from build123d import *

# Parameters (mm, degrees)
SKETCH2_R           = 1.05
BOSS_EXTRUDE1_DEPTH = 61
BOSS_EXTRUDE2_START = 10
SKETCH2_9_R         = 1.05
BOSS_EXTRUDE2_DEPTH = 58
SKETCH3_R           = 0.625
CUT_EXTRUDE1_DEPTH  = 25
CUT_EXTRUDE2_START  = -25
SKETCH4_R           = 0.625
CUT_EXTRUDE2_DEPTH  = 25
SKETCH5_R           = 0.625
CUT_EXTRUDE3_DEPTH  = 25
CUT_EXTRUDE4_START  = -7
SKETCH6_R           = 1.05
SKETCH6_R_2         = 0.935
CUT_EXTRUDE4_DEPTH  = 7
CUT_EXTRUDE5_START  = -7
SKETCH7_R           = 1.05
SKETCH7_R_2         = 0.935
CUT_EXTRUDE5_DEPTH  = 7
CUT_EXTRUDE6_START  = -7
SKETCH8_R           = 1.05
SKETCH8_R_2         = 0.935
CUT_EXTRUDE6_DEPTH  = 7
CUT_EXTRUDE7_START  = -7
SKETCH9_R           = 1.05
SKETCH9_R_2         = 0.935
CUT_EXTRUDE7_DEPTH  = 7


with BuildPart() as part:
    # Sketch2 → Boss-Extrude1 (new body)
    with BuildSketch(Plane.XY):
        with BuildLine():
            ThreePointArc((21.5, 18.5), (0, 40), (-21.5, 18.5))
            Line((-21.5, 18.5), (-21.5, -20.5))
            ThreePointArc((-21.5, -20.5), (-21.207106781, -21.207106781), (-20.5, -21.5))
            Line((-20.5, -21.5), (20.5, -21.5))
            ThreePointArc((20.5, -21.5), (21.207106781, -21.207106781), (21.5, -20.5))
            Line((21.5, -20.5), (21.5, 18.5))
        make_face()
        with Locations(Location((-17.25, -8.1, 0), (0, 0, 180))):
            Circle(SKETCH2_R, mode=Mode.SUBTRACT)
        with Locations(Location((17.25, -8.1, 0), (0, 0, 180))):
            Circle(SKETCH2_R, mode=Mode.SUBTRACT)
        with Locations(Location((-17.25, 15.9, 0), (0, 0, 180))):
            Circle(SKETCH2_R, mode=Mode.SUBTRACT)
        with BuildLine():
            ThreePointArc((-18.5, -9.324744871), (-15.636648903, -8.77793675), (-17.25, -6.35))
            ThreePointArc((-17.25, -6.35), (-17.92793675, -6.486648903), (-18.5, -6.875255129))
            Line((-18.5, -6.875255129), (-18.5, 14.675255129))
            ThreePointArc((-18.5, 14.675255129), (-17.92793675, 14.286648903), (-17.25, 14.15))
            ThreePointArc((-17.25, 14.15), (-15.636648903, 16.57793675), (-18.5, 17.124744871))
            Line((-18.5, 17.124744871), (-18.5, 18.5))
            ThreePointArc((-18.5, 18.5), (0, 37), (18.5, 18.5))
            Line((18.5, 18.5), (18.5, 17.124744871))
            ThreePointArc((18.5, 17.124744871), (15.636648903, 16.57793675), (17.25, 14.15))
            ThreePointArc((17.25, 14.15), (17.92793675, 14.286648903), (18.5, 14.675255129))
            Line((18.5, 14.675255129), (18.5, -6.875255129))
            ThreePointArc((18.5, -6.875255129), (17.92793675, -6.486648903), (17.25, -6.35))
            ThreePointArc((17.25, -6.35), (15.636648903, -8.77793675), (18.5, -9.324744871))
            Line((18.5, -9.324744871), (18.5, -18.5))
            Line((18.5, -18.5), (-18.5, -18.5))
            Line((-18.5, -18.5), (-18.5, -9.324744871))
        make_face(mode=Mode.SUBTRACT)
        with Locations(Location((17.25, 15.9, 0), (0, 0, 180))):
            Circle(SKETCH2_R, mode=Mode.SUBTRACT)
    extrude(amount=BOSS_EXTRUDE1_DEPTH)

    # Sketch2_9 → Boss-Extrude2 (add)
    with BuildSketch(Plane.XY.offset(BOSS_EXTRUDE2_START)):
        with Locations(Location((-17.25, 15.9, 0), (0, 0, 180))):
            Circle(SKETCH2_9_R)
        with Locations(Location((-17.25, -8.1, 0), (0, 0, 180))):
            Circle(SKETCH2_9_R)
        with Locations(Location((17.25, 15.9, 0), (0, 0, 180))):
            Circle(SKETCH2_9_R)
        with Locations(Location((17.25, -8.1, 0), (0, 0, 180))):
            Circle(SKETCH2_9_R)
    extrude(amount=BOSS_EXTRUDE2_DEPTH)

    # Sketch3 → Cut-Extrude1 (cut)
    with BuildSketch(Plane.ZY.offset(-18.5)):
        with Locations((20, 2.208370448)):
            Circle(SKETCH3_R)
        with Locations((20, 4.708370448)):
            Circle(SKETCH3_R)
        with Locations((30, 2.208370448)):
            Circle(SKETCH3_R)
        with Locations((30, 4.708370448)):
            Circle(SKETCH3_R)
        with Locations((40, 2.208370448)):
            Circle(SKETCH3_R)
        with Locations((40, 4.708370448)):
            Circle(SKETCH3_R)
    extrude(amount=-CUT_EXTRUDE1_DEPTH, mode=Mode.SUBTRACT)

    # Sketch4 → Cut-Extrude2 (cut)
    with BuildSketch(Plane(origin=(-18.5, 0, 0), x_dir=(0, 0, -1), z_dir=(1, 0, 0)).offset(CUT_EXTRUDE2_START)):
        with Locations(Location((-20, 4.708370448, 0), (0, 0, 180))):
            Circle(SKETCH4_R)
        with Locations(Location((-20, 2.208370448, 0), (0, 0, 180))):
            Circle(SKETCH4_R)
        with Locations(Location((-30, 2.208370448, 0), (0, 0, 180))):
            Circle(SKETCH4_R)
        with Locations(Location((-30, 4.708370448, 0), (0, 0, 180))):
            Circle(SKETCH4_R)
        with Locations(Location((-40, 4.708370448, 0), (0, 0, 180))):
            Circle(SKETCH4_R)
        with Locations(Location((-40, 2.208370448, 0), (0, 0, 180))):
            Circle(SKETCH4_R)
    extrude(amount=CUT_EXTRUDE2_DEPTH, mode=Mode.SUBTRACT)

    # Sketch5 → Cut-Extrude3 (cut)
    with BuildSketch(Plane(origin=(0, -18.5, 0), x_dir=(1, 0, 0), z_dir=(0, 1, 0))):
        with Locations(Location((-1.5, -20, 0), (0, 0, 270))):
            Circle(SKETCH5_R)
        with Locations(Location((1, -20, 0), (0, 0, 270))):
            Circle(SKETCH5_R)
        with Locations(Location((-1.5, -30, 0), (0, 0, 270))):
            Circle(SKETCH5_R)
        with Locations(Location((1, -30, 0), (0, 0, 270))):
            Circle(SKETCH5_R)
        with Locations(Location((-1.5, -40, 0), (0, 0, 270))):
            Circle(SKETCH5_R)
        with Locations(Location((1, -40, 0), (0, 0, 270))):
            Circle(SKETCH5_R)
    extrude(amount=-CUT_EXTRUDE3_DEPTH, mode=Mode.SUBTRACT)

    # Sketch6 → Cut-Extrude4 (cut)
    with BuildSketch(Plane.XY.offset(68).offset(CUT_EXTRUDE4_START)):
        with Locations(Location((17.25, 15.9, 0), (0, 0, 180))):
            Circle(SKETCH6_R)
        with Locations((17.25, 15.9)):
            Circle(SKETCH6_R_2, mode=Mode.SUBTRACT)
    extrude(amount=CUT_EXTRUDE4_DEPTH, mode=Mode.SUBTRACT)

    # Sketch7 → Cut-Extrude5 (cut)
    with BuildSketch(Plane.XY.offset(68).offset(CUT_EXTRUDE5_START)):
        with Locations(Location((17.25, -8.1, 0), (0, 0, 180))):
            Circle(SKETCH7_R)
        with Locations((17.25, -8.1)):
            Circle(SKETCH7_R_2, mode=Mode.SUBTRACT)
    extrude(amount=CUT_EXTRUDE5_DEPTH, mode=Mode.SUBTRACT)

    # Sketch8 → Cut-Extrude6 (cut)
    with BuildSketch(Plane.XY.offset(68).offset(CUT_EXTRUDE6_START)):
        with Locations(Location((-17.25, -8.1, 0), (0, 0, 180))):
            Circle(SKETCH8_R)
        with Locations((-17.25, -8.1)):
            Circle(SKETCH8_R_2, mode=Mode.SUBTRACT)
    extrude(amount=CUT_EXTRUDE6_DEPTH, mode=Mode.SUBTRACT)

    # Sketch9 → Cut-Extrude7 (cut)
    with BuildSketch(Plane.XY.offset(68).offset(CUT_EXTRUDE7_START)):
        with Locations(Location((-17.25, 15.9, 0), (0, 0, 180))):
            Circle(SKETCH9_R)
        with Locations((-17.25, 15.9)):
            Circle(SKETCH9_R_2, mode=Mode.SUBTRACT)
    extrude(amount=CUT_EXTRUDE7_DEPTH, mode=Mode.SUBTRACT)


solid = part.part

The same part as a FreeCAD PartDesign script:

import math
import FreeCAD as App
import Part
import Sketcher
Q = App.Units.Quantity

doc = App.newDocument("Part")
params = doc.addObject("Spreadsheet::Sheet", "Params")
for row, (alias, value) in enumerate([
    ("sketch1_radius", "1 mm"),
    ("sketch1_diameter", "2.1 mm"),
    ("sketch1_radius2", "21.5 mm"),
    ("sketch1_radius3", "18.5 mm"),
    ("sketch1_height", "39 mm"),
    ("pad1_length", "61 mm"),
    ("sketch2_diameter", "2.1 mm"),
    ("pad2_length", "58 mm"),
    ("sketch3_diameter", "1.25 mm"),
    ("pocket1_length", "25 mm"),
    ("sketch4_diameter", "1.25 mm"),
    ("pocket2_length", "25 mm"),
    ("sketch5_diameter", "1.25 mm"),
    ("pocket3_length", "25 mm"),
    ("sketch6_diameter", "2.1 mm"),
    ("sketch6_diameter2", "1.87 mm"),
    ("pocket4_length", "7 mm"),
    ("sketch7_diameter", "2.1 mm"),
    ("sketch7_diameter2", "1.87 mm"),
    ("pocket5_length", "7 mm"),
    ("sketch8_diameter", "2.1 mm"),
    ("sketch8_diameter2", "1.87 mm"),
    ("pocket6_length", "7 mm"),
    ("sketch9_diameter", "2.1 mm"),
    ("sketch9_diameter2", "1.87 mm"),
    ("pocket7_length", "7 mm"),
], start=1):
    params.set(f"A{row}", alias)
    params.set(f"B{row}", "=" + value)
    params.setAlias(f"B{row}", alias)

body = doc.addObject("PartDesign::Body", "Body")

sketch1 = body.newObject("Sketcher::SketchObject", "Sketch")
sketch1.AttachmentSupport = (doc.getObject("XY_Plane"), [""])
sketch1.MapMode = "FlatFace"
sketch1.addGeometry(Part.ArcOfCircle(Part.Circle(App.Vector(0, 18.5, 0), App.Vector(0, 0, 1), 21.5), math.radians(0), math.radians(180)), False)
sketch1.addGeometry(Part.LineSegment(App.Vector(-21.5, 18.5, 0), App.Vector(-21.5, -20.5, 0)), False)
sketch1.addGeometry(Part.ArcOfCircle(Part.Circle(App.Vector(-20.5, -20.5, 0), App.Vector(0, 0, 1), 1), math.radians(-180), math.radians(-90)), False)
sketch1.addGeometry(Part.LineSegment(App.Vector(-20.5, -21.5, 0), App.Vector(20.5, -21.5, 0)), False)
sketch1.addGeometry(Part.ArcOfCircle(Part.Circle(App.Vector(20.5, -20.5, 0), App.Vector(0, 0, 1), 1), math.radians(-90), math.radians(0)), False)
sketch1.addGeometry(Part.LineSegment(App.Vector(21.5, -20.5, 0), App.Vector(21.5, 18.5, 0)), False)
sketch1.addGeometry(Part.Circle(App.Vector(-17.2, -8.1, 0), App.Vector(0, 0, 1), 1.1), False)
sketch1.addGeometry(Part.Circle(App.Vector(17.2, -8.1, 0), App.Vector(0, 0, 1), 1.1), False)
sketch1.addGeometry(Part.Circle(App.Vector(-17.2, 15.9, 0), App.Vector(0, 0, 1), 1.1), False)
sketch1.addGeometry(Part.LineSegment(App.Vector(-18.5, -18.5, 0), App.Vector(-18.5, -9.3, 0)), False)
sketch1.addGeometry(Part.ArcOfCircle(Part.Circle(App.Vector(-17.2, -8.1, 0), App.Vector(0, 0, 1), 1.8), math.radians(-136), math.radians(90)), False)
sketch1.addGeometry(Part.ArcOfCircle(Part.Circle(App.Vector(-17.2, -8.1, 0), App.Vector(0, 0, 1), 1.8), math.radians(90), math.radians(136)), False)
sketch1.addGeometry(Part.LineSegment(App.Vector(-18.5, -6.9, 0), App.Vector(-18.5, 14.7, 0)), False)
sketch1.addGeometry(Part.ArcOfCircle(Part.Circle(App.Vector(-17.2, 15.9, 0), App.Vector(0, 0, 1), 1.8), math.radians(-136), math.radians(-90)), False)
sketch1.addGeometry(Part.ArcOfCircle(Part.Circle(App.Vector(-17.2, 15.9, 0), App.Vector(0, 0, 1), 1.8), math.radians(-90), math.radians(136)), False)
sketch1.addGeometry(Part.LineSegment(App.Vector(-18.5, 17.1, 0), App.Vector(-18.5, 18.5, 0)), False)
sketch1.addGeometry(Part.ArcOfCircle(Part.Circle(App.Vector(0, 18.5, 0), App.Vector(0, 0, 1), 18.5), math.radians(0), math.radians(180)), False)
sketch1.addGeometry(Part.LineSegment(App.Vector(18.5, 18.5, 0), App.Vector(18.5, 17.1, 0)), False)
sketch1.addGeometry(Part.ArcOfCircle(Part.Circle(App.Vector(17.2, 15.9, 0), App.Vector(0, 0, 1), 1.8), math.radians(44), math.radians(270)), False)
sketch1.addGeometry(Part.ArcOfCircle(Part.Circle(App.Vector(17.2, 15.9, 0), App.Vector(0, 0, 1), 1.8), math.radians(-90), math.radians(-44)), False)
sketch1.addGeometry(Part.LineSegment(App.Vector(18.5, 14.7, 0), App.Vector(18.5, -6.9, 0)), False)
sketch1.addGeometry(Part.ArcOfCircle(Part.Circle(App.Vector(17.2, -8.1, 0), App.Vector(0, 0, 1), 1.8), math.radians(44), math.radians(90)), False)
sketch1.addGeometry(Part.ArcOfCircle(Part.Circle(App.Vector(17.2, -8.1, 0), App.Vector(0, 0, 1), 1.8), math.radians(90), math.radians(316)), False)
sketch1.addGeometry(Part.LineSegment(App.Vector(18.5, -9.3, 0), App.Vector(18.5, -18.5, 0)), False)
sketch1.addGeometry(Part.LineSegment(App.Vector(18.5, -18.5, 0), App.Vector(-18.5, -18.5, 0)), False)
sketch1.addGeometry(Part.Circle(App.Vector(17.2, 15.9, 0), App.Vector(0, 0, 1), 1.1), False)
sketch1.addConstraint(Sketcher.Constraint("Tangent", 0, 2, 1, 1))
sketch1.addConstraint(Sketcher.Constraint("Tangent", 1, 2, 2, 1))
sketch1.addConstraint(Sketcher.Constraint("Tangent", 2, 2, 3, 1))
sketch1.addConstraint(Sketcher.Constraint("Tangent", 3, 2, 4, 1))
sketch1.addConstraint(Sketcher.Constraint("Tangent", 4, 2, 5, 1))
sketch1.addConstraint(Sketcher.Constraint("Tangent", 5, 2, 0, 1))
sketch1.addConstraint(Sketcher.Constraint("Coincident", 9, 2, 10, 1))
sketch1.addConstraint(Sketcher.Constraint("Tangent", 10, 2, 11, 1))
sketch1.addConstraint(Sketcher.Constraint("Coincident", 11, 2, 12, 1))
sketch1.addConstraint(Sketcher.Constraint("Coincident", 12, 2, 13, 1))
sketch1.addConstraint(Sketcher.Constraint("Tangent", 13, 2, 14, 1))
sketch1.addConstraint(Sketcher.Constraint("Coincident", 14, 2, 15, 1))
sketch1.addConstraint(Sketcher.Constraint("Tangent", 15, 2, 16, 2))
sketch1.addConstraint(Sketcher.Constraint("Tangent", 16, 1, 17, 1))
sketch1.addConstraint(Sketcher.Constraint("Coincident", 17, 2, 18, 1))
sketch1.addConstraint(Sketcher.Constraint("Tangent", 18, 2, 19, 1))
sketch1.addConstraint(Sketcher.Constraint("Coincident", 19, 2, 20, 1))
sketch1.addConstraint(Sketcher.Constraint("Coincident", 20, 2, 21, 1))
sketch1.addConstraint(Sketcher.Constraint("Tangent", 21, 2, 22, 1))
sketch1.addConstraint(Sketcher.Constraint("Coincident", 22, 2, 23, 1))
sketch1.addConstraint(Sketcher.Constraint("Coincident", 23, 2, 24, 1))
sketch1.addConstraint(Sketcher.Constraint("Coincident", 24, 2, 9, 1))
sketch1.addConstraint(Sketcher.Constraint("Vertical", 1))
sketch1.addConstraint(Sketcher.Constraint("Horizontal", 3))
sketch1.addConstraint(Sketcher.Constraint("Vertical", 5))
sketch1.addConstraint(Sketcher.Constraint("Vertical", 9))
sketch1.addConstraint(Sketcher.Constraint("Vertical", 12))
sketch1.addConstraint(Sketcher.Constraint("Vertical", 15))
sketch1.addConstraint(Sketcher.Constraint("Vertical", 17))
sketch1.addConstraint(Sketcher.Constraint("Vertical", 20))
sketch1.addConstraint(Sketcher.Constraint("Vertical", 23))
sketch1.addConstraint(Sketcher.Constraint("Horizontal", 24))
sketch1.addConstraint(Sketcher.Constraint("Coincident", 10, 3, 6, 3))
sketch1.addConstraint(Sketcher.Constraint("Coincident", 13, 3, 8, 3))
sketch1.addConstraint(Sketcher.Constraint("Coincident", 16, 3, 0, 3))
sketch1.addConstraint(Sketcher.Constraint("Coincident", 21, 3, 7, 3))
sketch1.addConstraint(Sketcher.Constraint("Coincident", 25, 3, 18, 3))
sketch1.addConstraint(Sketcher.Constraint("Equal", 2, 4))
sketch1.addConstraint(Sketcher.Constraint("Equal", 6, 7))
sketch1.addConstraint(Sketcher.Constraint("Equal", 7, 8))
sketch1.addConstraint(Sketcher.Constraint("Equal", 10, 11))
sketch1.addConstraint(Sketcher.Constraint("Equal", 11, 13))
sketch1.addConstraint(Sketcher.Constraint("Equal", 13, 14))
sketch1.addConstraint(Sketcher.Constraint("Equal", 14, 18))
sketch1.addConstraint(Sketcher.Constraint("Equal", 18, 19))
sketch1.addConstraint(Sketcher.Constraint("Equal", 19, 21))
sketch1.addConstraint(Sketcher.Constraint("Equal", 21, 22))
sketch1.addConstraint(Sketcher.Constraint("Equal", 8, 25))
sketch1.addConstraint(Sketcher.Constraint("Symmetric", 15, 2, 23, 2, -1, 1))
sketch1.addConstraint(Sketcher.Constraint("Symmetric", 6, 3, 7, 3, -2))
sketch1.addConstraint(Sketcher.Constraint("Symmetric", 8, 3, 18, 3, -2))
sketch1.addConstraint(Sketcher.Constraint("PointOnObject", 0, 3, -2))
sketch1.addConstraint(Sketcher.Constraint("Horizontal", 12, 2, 19, 2))
sketch1.addConstraint(Sketcher.Constraint("Horizontal", 9, 2, 22, 2))
sketch1.addConstraint(Sketcher.Constraint("Vertical", 6, 3, 8, 3))
sketch1.addConstraint(Sketcher.Constraint("Vertical", 14, 3, 10, 2))
sketch1.addConstraint(Sketcher.Constraint("Vertical", 9, 2, 11, 2))
sketch1.addConstraint(Sketcher.Constraint("Vertical", 10, 2, 13, 2))
sketch1.addConstraint(Sketcher.Constraint("Vertical", 25, 3, 18, 2))
sketch1.addConstraint(Sketcher.Constraint("Vertical", 18, 2, 21, 2))
sketch1.addConstraint(Sketcher.Constraint("Radius", 2, Q("1 mm")))
sketch1.addConstraint(Sketcher.Constraint("Diameter", 6, Q("2.1 mm")))
sketch1.addConstraint(Sketcher.Constraint("Radius", 0, Q("21.5 mm")))
sketch1.addConstraint(Sketcher.Constraint("Radius", 16, Q("18.5 mm")))
sketch1.addConstraint(Sketcher.Constraint("DistanceY", 1, 2, 1, 1, Q("39 mm")))
sketch1.addConstraint(Sketcher.Constraint("Radius", 10, Q("1.75 mm")))
sketch1.addConstraint(Sketcher.Constraint("DistanceY", 6, 3, 8, 3, Q("24 mm")))
sketch1.addConstraint(Sketcher.Constraint("DistanceY", 4, 3, 23, 2, Q("2 mm")))
sketch1.addConstraint(Sketcher.Constraint("DistanceY", 6, 3, -1, 1, Q("8.1 mm")))
sketch1.addConstraint(Sketcher.Constraint("DistanceX", 6, 3, 7, 3, Q("34.5 mm")))
sketch1.setExpression("Constraints[60]", "Params.sketch1_radius")
sketch1.setExpression("Constraints[61]", "Params.sketch1_diameter")
sketch1.setExpression("Constraints[62]", "Params.sketch1_radius2")
sketch1.setExpression("Constraints[63]", "Params.sketch1_radius3")
sketch1.setExpression("Constraints[64]", "Params.sketch1_height")
pad1 = body.newObject("PartDesign::Pad", "Pad")
pad1.Profile = sketch1
pad1.setExpression("Length", "Params.pad1_length")

sketch2 = body.newObject("Sketcher::SketchObject", "Sketch001")
sketch2.AttachmentSupport = (doc.getObject("XY_Plane"), [""])
sketch2.MapMode = "FlatFace"
sketch2.AttachmentOffset = App.Placement(App.Vector(0, 0, 10), App.Rotation())
sketch2.addGeometry(Part.Circle(App.Vector(-17.2, 15.9, 0), App.Vector(0, 0, 1), 1.1), False)
sketch2.addGeometry(Part.Circle(App.Vector(-17.2, -8.1, 0), App.Vector(0, 0, 1), 1.1), False)
sketch2.addGeometry(Part.Circle(App.Vector(17.2, 15.9, 0), App.Vector(0, 0, 1), 1.1), False)
sketch2.addGeometry(Part.Circle(App.Vector(17.2, -8.1, 0), App.Vector(0, 0, 1), 1.1), False)
sketch2.addConstraint(Sketcher.Constraint("Equal", 0, 1))
sketch2.addConstraint(Sketcher.Constraint("Equal", 1, 2))
sketch2.addConstraint(Sketcher.Constraint("Equal", 2, 3))
sketch2.addConstraint(Sketcher.Constraint("Symmetric", 0, 3, 2, 3, -2))
sketch2.addConstraint(Sketcher.Constraint("Symmetric", 1, 3, 3, 3, -2))
sketch2.addConstraint(Sketcher.Constraint("Vertical", 0, 3, 1, 3))
sketch2.addConstraint(Sketcher.Constraint("Diameter", 0, Q("2.1 mm")))
sketch2.addConstraint(Sketcher.Constraint("DistanceY", 1, 3, 0, 3, Q("24 mm")))
sketch2.addConstraint(Sketcher.Constraint("DistanceY", -1, 1, 0, 3, Q("15.9 mm")))
sketch2.addConstraint(Sketcher.Constraint("DistanceX", 0, 3, 2, 3, Q("34.5 mm")))
sketch2.setExpression("Constraints[6]", "Params.sketch2_diameter")
pad2 = body.newObject("PartDesign::Pad", "Pad001")
pad2.Profile = sketch2
pad2.setExpression("Length", "Params.pad2_length")

sketch3 = body.newObject("Sketcher::SketchObject", "Sketch002")
sketch3.AttachmentSupport = (doc.getObject("YZ_Plane"), [""])
sketch3.MapMode = "FlatFace"
sketch3.AttachmentOffset = App.Placement(App.Vector(0, 0, 18.5), App.Rotation())
sketch3.addGeometry(Part.Circle(App.Vector(2.2, 20, 0), App.Vector(0, 0, 1), 0.6), False)
sketch3.addGeometry(Part.Circle(App.Vector(4.7, 20, 0), App.Vector(0, 0, 1), 0.6), False)
sketch3.addGeometry(Part.Circle(App.Vector(2.2, 30, 0), App.Vector(0, 0, 1), 0.6), False)
sketch3.addGeometry(Part.Circle(App.Vector(4.7, 30, 0), App.Vector(0, 0, 1), 0.6), False)
sketch3.addGeometry(Part.Circle(App.Vector(2.2, 40, 0), App.Vector(0, 0, 1), 0.6), False)
sketch3.addGeometry(Part.Circle(App.Vector(4.7, 40, 0), App.Vector(0, 0, 1), 0.6), False)
sketch3.addConstraint(Sketcher.Constraint("Equal", 0, 1))
sketch3.addConstraint(Sketcher.Constraint("Equal", 1, 2))
sketch3.addConstraint(Sketcher.Constraint("Equal", 2, 3))
sketch3.addConstraint(Sketcher.Constraint("Equal", 3, 4))
sketch3.addConstraint(Sketcher.Constraint("Equal", 4, 5))
sketch3.addConstraint(Sketcher.Constraint("Horizontal", 0, 3, 1, 3))
sketch3.addConstraint(Sketcher.Constraint("Horizontal", 2, 3, 3, 3))
sketch3.addConstraint(Sketcher.Constraint("Horizontal", 4, 3, 5, 3))
sketch3.addConstraint(Sketcher.Constraint("Vertical", 0, 3, 2, 3))
sketch3.addConstraint(Sketcher.Constraint("Vertical", 1, 3, 3, 3))
sketch3.addConstraint(Sketcher.Constraint("Vertical", 2, 3, 4, 3))
sketch3.addConstraint(Sketcher.Constraint("Vertical", 3, 3, 5, 3))
sketch3.addConstraint(Sketcher.Constraint("Diameter", 0, Q("1.25 mm")))
sketch3.addConstraint(Sketcher.Constraint("DistanceY", -1, 1, 0, 3, Q("20 mm")))
sketch3.addConstraint(Sketcher.Constraint("DistanceY", -1, 1, 2, 3, Q("30 mm")))
sketch3.addConstraint(Sketcher.Constraint("DistanceY", -1, 1, 4, 3, Q("40 mm")))
sketch3.addConstraint(Sketcher.Constraint("DistanceX", 0, 3, 1, 3, Q("2.5 mm")))
sketch3.addConstraint(Sketcher.Constraint("DistanceX", -1, 1, 0, 3, Q("2.20837 mm")))
sketch3.setExpression("Constraints[12]", "Params.sketch3_diameter")
pocket1 = body.newObject("PartDesign::Pocket", "Pocket")
pocket1.Profile = sketch3
pocket1.setExpression("Length", "Params.pocket1_length")
pocket1.Reversed = True

sketch4 = body.newObject("Sketcher::SketchObject", "Sketch003")
sketch4.AttachmentSupport = (doc.getObject("YZ_Plane"), [""])
sketch4.MapMode = "FlatFace"
sketch4.AttachmentOffset = App.Placement(App.Vector(0, 0, -43.5), App.Rotation())
sketch4.addGeometry(Part.Circle(App.Vector(4.7, 20, 0), App.Vector(0, 0, 1), 0.6), False)
sketch4.addGeometry(Part.Circle(App.Vector(2.2, 20, 0), App.Vector(0, 0, 1), 0.6), False)
sketch4.addGeometry(Part.Circle(App.Vector(2.2, 30, 0), App.Vector(0, 0, 1), 0.6), False)
sketch4.addGeometry(Part.Circle(App.Vector(4.7, 30, 0), App.Vector(0, 0, 1), 0.6), False)
sketch4.addGeometry(Part.Circle(App.Vector(4.7, 40, 0), App.Vector(0, 0, 1), 0.6), False)
sketch4.addGeometry(Part.Circle(App.Vector(2.2, 40, 0), App.Vector(0, 0, 1), 0.6), False)
sketch4.addConstraint(Sketcher.Constraint("Equal", 0, 1))
sketch4.addConstraint(Sketcher.Constraint("Equal", 1, 2))
sketch4.addConstraint(Sketcher.Constraint("Equal", 2, 3))
sketch4.addConstraint(Sketcher.Constraint("Equal", 3, 4))
sketch4.addConstraint(Sketcher.Constraint("Equal", 4, 5))
sketch4.addConstraint(Sketcher.Constraint("Horizontal", 0, 3, 1, 3))
sketch4.addConstraint(Sketcher.Constraint("Horizontal", 2, 3, 3, 3))
sketch4.addConstraint(Sketcher.Constraint("Horizontal", 4, 3, 5, 3))
sketch4.addConstraint(Sketcher.Constraint("Vertical", 1, 3, 2, 3))
sketch4.addConstraint(Sketcher.Constraint("Vertical", 0, 3, 3, 3))
sketch4.addConstraint(Sketcher.Constraint("Vertical", 3, 3, 4, 3))
sketch4.addConstraint(Sketcher.Constraint("Vertical", 2, 3, 5, 3))
sketch4.addConstraint(Sketcher.Constraint("Diameter", 0, Q("1.25 mm")))
sketch4.addConstraint(Sketcher.Constraint("DistanceY", -1, 1, 0, 3, Q("20 mm")))
sketch4.addConstraint(Sketcher.Constraint("DistanceY", -1, 1, 2, 3, Q("30 mm")))
sketch4.addConstraint(Sketcher.Constraint("DistanceY", -1, 1, 4, 3, Q("40 mm")))
sketch4.addConstraint(Sketcher.Constraint("DistanceX", 1, 3, 0, 3, Q("2.5 mm")))
sketch4.addConstraint(Sketcher.Constraint("DistanceX", -1, 1, 0, 3, Q("4.70837 mm")))
sketch4.setExpression("Constraints[12]", "Params.sketch4_diameter")
pocket2 = body.newObject("PartDesign::Pocket", "Pocket001")
pocket2.Profile = sketch4
pocket2.setExpression("Length", "Params.pocket2_length")
pocket2.Reversed = True

sketch5 = body.newObject("Sketcher::SketchObject", "Sketch004")
sketch5.AttachmentSupport = (doc.getObject("XZ_Plane"), [""])
sketch5.MapMode = "FlatFace"
sketch5.AttachmentOffset = App.Placement(App.Vector(0, 0, 18.5), App.Rotation())
sketch5.addGeometry(Part.Circle(App.Vector(-1.5, 20, 0), App.Vector(0, 0, 1), 0.6), False)
sketch5.addGeometry(Part.Circle(App.Vector(1, 20, 0), App.Vector(0, 0, 1), 0.6), False)
sketch5.addGeometry(Part.Circle(App.Vector(-1.5, 30, 0), App.Vector(0, 0, 1), 0.6), False)
sketch5.addGeometry(Part.Circle(App.Vector(1, 30, 0), App.Vector(0, 0, 1), 0.6), False)
sketch5.addGeometry(Part.Circle(App.Vector(-1.5, 40, 0), App.Vector(0, 0, 1), 0.6), False)
sketch5.addGeometry(Part.Circle(App.Vector(1, 40, 0), App.Vector(0, 0, 1), 0.6), False)
sketch5.addConstraint(Sketcher.Constraint("Equal", 0, 1))
sketch5.addConstraint(Sketcher.Constraint("Equal", 1, 2))
sketch5.addConstraint(Sketcher.Constraint("Equal", 2, 3))
sketch5.addConstraint(Sketcher.Constraint("Equal", 3, 4))
sketch5.addConstraint(Sketcher.Constraint("Equal", 4, 5))
sketch5.addConstraint(Sketcher.Constraint("Horizontal", 0, 3, 1, 3))
sketch5.addConstraint(Sketcher.Constraint("Horizontal", 2, 3, 3, 3))
sketch5.addConstraint(Sketcher.Constraint("Horizontal", 4, 3, 5, 3))
sketch5.addConstraint(Sketcher.Constraint("Vertical", 0, 3, 2, 3))
sketch5.addConstraint(Sketcher.Constraint("Vertical", 1, 3, 3, 3))
sketch5.addConstraint(Sketcher.Constraint("Vertical", 2, 3, 4, 3))
sketch5.addConstraint(Sketcher.Constraint("Vertical", 3, 3, 5, 3))
sketch5.addConstraint(Sketcher.Constraint("Diameter", 0, Q("1.25 mm")))
sketch5.addConstraint(Sketcher.Constraint("DistanceY", -1, 1, 0, 3, Q("20 mm")))
sketch5.addConstraint(Sketcher.Constraint("DistanceX", -1, 1, 1, 3, Q("1 mm")))
sketch5.addConstraint(Sketcher.Constraint("DistanceY", -1, 1, 2, 3, Q("30 mm")))
sketch5.addConstraint(Sketcher.Constraint("DistanceY", -1, 1, 4, 3, Q("40 mm")))
sketch5.addConstraint(Sketcher.Constraint("DistanceX", 0, 3, -1, 1, Q("1.5 mm")))
sketch5.setExpression("Constraints[12]", "Params.sketch5_diameter")
pocket3 = body.newObject("PartDesign::Pocket", "Pocket002")
pocket3.Profile = sketch5
pocket3.setExpression("Length", "Params.pocket3_length")
pocket3.Reversed = True

sketch6 = body.newObject("Sketcher::SketchObject", "Sketch005")
sketch6.AttachmentSupport = (doc.getObject("XY_Plane"), [""])
sketch6.MapMode = "FlatFace"
sketch6.AttachmentOffset = App.Placement(App.Vector(0, 0, 61), App.Rotation())
sketch6.addGeometry(Part.Circle(App.Vector(17.2, 15.9, 0), App.Vector(0, 0, 1), 1.1), False)
sketch6.addGeometry(Part.Circle(App.Vector(17.2, 15.9, 0), App.Vector(0, 0, 1), 0.9), False)
sketch6.addConstraint(Sketcher.Constraint("Coincident", 1, 3, 0, 3))
sketch6.addConstraint(Sketcher.Constraint("Diameter", 0, Q("2.1 mm")))
sketch6.addConstraint(Sketcher.Constraint("Diameter", 1, Q("1.87 mm")))
sketch6.addConstraint(Sketcher.Constraint("DistanceY", -1, 1, 0, 3, Q("15.9 mm")))
sketch6.addConstraint(Sketcher.Constraint("DistanceX", -1, 1, 0, 3, Q("17.25 mm")))
sketch6.setExpression("Constraints[1]", "Params.sketch6_diameter")
sketch6.setExpression("Constraints[2]", "Params.sketch6_diameter2")
pocket4 = body.newObject("PartDesign::Pocket", "Pocket003")
pocket4.Profile = sketch6
pocket4.setExpression("Length", "Params.pocket4_length")
pocket4.Reversed = True

sketch7 = body.newObject("Sketcher::SketchObject", "Sketch006")
sketch7.AttachmentSupport = (doc.getObject("XY_Plane"), [""])
sketch7.MapMode = "FlatFace"
sketch7.AttachmentOffset = App.Placement(App.Vector(0, 0, 61), App.Rotation())
sketch7.addGeometry(Part.Circle(App.Vector(17.2, -8.1, 0), App.Vector(0, 0, 1), 1.1), False)
sketch7.addGeometry(Part.Circle(App.Vector(17.2, -8.1, 0), App.Vector(0, 0, 1), 0.9), False)
sketch7.addConstraint(Sketcher.Constraint("Coincident", 1, 3, 0, 3))
sketch7.addConstraint(Sketcher.Constraint("Diameter", 0, Q("2.1 mm")))
sketch7.addConstraint(Sketcher.Constraint("Diameter", 1, Q("1.87 mm")))
sketch7.addConstraint(Sketcher.Constraint("DistanceY", 0, 3, -1, 1, Q("8.1 mm")))
sketch7.addConstraint(Sketcher.Constraint("DistanceX", -1, 1, 0, 3, Q("17.25 mm")))
sketch7.setExpression("Constraints[1]", "Params.sketch7_diameter")
sketch7.setExpression("Constraints[2]", "Params.sketch7_diameter2")
pocket5 = body.newObject("PartDesign::Pocket", "Pocket004")
pocket5.Profile = sketch7
pocket5.setExpression("Length", "Params.pocket5_length")
pocket5.Reversed = True

sketch8 = body.newObject("Sketcher::SketchObject", "Sketch007")
sketch8.AttachmentSupport = (doc.getObject("XY_Plane"), [""])
sketch8.MapMode = "FlatFace"
sketch8.AttachmentOffset = App.Placement(App.Vector(0, 0, 61), App.Rotation())
sketch8.addGeometry(Part.Circle(App.Vector(-17.2, -8.1, 0), App.Vector(0, 0, 1), 1.1), False)
sketch8.addGeometry(Part.Circle(App.Vector(-17.2, -8.1, 0), App.Vector(0, 0, 1), 0.9), False)
sketch8.addConstraint(Sketcher.Constraint("Coincident", 1, 3, 0, 3))
sketch8.addConstraint(Sketcher.Constraint("Diameter", 0, Q("2.1 mm")))
sketch8.addConstraint(Sketcher.Constraint("Diameter", 1, Q("1.87 mm")))
sketch8.addConstraint(Sketcher.Constraint("DistanceY", 0, 3, -1, 1, Q("8.1 mm")))
sketch8.addConstraint(Sketcher.Constraint("DistanceX", 0, 3, -1, 1, Q("17.25 mm")))
sketch8.setExpression("Constraints[1]", "Params.sketch8_diameter")
sketch8.setExpression("Constraints[2]", "Params.sketch8_diameter2")
pocket6 = body.newObject("PartDesign::Pocket", "Pocket005")
pocket6.Profile = sketch8
pocket6.setExpression("Length", "Params.pocket6_length")
pocket6.Reversed = True

sketch9 = body.newObject("Sketcher::SketchObject", "Sketch008")
sketch9.AttachmentSupport = (doc.getObject("XY_Plane"), [""])
sketch9.MapMode = "FlatFace"
sketch9.AttachmentOffset = App.Placement(App.Vector(0, 0, 61), App.Rotation())
sketch9.addGeometry(Part.Circle(App.Vector(-17.2, 15.9, 0), App.Vector(0, 0, 1), 1.1), False)
sketch9.addGeometry(Part.Circle(App.Vector(-17.2, 15.9, 0), App.Vector(0, 0, 1), 0.9), False)
sketch9.addConstraint(Sketcher.Constraint("Coincident", 1, 3, 0, 3))
sketch9.addConstraint(Sketcher.Constraint("Diameter", 0, Q("2.1 mm")))
sketch9.addConstraint(Sketcher.Constraint("Diameter", 1, Q("1.87 mm")))
sketch9.addConstraint(Sketcher.Constraint("DistanceY", -1, 1, 0, 3, Q("15.9 mm")))
sketch9.addConstraint(Sketcher.Constraint("DistanceX", 0, 3, -1, 1, Q("17.25 mm")))
sketch9.setExpression("Constraints[1]", "Params.sketch9_diameter")
sketch9.setExpression("Constraints[2]", "Params.sketch9_diameter2")
pocket7 = body.newObject("PartDesign::Pocket", "Pocket006")
pocket7.Profile = sketch9
pocket7.setExpression("Length", "Params.pocket7_length")
pocket7.Reversed = True

doc.recompute()
